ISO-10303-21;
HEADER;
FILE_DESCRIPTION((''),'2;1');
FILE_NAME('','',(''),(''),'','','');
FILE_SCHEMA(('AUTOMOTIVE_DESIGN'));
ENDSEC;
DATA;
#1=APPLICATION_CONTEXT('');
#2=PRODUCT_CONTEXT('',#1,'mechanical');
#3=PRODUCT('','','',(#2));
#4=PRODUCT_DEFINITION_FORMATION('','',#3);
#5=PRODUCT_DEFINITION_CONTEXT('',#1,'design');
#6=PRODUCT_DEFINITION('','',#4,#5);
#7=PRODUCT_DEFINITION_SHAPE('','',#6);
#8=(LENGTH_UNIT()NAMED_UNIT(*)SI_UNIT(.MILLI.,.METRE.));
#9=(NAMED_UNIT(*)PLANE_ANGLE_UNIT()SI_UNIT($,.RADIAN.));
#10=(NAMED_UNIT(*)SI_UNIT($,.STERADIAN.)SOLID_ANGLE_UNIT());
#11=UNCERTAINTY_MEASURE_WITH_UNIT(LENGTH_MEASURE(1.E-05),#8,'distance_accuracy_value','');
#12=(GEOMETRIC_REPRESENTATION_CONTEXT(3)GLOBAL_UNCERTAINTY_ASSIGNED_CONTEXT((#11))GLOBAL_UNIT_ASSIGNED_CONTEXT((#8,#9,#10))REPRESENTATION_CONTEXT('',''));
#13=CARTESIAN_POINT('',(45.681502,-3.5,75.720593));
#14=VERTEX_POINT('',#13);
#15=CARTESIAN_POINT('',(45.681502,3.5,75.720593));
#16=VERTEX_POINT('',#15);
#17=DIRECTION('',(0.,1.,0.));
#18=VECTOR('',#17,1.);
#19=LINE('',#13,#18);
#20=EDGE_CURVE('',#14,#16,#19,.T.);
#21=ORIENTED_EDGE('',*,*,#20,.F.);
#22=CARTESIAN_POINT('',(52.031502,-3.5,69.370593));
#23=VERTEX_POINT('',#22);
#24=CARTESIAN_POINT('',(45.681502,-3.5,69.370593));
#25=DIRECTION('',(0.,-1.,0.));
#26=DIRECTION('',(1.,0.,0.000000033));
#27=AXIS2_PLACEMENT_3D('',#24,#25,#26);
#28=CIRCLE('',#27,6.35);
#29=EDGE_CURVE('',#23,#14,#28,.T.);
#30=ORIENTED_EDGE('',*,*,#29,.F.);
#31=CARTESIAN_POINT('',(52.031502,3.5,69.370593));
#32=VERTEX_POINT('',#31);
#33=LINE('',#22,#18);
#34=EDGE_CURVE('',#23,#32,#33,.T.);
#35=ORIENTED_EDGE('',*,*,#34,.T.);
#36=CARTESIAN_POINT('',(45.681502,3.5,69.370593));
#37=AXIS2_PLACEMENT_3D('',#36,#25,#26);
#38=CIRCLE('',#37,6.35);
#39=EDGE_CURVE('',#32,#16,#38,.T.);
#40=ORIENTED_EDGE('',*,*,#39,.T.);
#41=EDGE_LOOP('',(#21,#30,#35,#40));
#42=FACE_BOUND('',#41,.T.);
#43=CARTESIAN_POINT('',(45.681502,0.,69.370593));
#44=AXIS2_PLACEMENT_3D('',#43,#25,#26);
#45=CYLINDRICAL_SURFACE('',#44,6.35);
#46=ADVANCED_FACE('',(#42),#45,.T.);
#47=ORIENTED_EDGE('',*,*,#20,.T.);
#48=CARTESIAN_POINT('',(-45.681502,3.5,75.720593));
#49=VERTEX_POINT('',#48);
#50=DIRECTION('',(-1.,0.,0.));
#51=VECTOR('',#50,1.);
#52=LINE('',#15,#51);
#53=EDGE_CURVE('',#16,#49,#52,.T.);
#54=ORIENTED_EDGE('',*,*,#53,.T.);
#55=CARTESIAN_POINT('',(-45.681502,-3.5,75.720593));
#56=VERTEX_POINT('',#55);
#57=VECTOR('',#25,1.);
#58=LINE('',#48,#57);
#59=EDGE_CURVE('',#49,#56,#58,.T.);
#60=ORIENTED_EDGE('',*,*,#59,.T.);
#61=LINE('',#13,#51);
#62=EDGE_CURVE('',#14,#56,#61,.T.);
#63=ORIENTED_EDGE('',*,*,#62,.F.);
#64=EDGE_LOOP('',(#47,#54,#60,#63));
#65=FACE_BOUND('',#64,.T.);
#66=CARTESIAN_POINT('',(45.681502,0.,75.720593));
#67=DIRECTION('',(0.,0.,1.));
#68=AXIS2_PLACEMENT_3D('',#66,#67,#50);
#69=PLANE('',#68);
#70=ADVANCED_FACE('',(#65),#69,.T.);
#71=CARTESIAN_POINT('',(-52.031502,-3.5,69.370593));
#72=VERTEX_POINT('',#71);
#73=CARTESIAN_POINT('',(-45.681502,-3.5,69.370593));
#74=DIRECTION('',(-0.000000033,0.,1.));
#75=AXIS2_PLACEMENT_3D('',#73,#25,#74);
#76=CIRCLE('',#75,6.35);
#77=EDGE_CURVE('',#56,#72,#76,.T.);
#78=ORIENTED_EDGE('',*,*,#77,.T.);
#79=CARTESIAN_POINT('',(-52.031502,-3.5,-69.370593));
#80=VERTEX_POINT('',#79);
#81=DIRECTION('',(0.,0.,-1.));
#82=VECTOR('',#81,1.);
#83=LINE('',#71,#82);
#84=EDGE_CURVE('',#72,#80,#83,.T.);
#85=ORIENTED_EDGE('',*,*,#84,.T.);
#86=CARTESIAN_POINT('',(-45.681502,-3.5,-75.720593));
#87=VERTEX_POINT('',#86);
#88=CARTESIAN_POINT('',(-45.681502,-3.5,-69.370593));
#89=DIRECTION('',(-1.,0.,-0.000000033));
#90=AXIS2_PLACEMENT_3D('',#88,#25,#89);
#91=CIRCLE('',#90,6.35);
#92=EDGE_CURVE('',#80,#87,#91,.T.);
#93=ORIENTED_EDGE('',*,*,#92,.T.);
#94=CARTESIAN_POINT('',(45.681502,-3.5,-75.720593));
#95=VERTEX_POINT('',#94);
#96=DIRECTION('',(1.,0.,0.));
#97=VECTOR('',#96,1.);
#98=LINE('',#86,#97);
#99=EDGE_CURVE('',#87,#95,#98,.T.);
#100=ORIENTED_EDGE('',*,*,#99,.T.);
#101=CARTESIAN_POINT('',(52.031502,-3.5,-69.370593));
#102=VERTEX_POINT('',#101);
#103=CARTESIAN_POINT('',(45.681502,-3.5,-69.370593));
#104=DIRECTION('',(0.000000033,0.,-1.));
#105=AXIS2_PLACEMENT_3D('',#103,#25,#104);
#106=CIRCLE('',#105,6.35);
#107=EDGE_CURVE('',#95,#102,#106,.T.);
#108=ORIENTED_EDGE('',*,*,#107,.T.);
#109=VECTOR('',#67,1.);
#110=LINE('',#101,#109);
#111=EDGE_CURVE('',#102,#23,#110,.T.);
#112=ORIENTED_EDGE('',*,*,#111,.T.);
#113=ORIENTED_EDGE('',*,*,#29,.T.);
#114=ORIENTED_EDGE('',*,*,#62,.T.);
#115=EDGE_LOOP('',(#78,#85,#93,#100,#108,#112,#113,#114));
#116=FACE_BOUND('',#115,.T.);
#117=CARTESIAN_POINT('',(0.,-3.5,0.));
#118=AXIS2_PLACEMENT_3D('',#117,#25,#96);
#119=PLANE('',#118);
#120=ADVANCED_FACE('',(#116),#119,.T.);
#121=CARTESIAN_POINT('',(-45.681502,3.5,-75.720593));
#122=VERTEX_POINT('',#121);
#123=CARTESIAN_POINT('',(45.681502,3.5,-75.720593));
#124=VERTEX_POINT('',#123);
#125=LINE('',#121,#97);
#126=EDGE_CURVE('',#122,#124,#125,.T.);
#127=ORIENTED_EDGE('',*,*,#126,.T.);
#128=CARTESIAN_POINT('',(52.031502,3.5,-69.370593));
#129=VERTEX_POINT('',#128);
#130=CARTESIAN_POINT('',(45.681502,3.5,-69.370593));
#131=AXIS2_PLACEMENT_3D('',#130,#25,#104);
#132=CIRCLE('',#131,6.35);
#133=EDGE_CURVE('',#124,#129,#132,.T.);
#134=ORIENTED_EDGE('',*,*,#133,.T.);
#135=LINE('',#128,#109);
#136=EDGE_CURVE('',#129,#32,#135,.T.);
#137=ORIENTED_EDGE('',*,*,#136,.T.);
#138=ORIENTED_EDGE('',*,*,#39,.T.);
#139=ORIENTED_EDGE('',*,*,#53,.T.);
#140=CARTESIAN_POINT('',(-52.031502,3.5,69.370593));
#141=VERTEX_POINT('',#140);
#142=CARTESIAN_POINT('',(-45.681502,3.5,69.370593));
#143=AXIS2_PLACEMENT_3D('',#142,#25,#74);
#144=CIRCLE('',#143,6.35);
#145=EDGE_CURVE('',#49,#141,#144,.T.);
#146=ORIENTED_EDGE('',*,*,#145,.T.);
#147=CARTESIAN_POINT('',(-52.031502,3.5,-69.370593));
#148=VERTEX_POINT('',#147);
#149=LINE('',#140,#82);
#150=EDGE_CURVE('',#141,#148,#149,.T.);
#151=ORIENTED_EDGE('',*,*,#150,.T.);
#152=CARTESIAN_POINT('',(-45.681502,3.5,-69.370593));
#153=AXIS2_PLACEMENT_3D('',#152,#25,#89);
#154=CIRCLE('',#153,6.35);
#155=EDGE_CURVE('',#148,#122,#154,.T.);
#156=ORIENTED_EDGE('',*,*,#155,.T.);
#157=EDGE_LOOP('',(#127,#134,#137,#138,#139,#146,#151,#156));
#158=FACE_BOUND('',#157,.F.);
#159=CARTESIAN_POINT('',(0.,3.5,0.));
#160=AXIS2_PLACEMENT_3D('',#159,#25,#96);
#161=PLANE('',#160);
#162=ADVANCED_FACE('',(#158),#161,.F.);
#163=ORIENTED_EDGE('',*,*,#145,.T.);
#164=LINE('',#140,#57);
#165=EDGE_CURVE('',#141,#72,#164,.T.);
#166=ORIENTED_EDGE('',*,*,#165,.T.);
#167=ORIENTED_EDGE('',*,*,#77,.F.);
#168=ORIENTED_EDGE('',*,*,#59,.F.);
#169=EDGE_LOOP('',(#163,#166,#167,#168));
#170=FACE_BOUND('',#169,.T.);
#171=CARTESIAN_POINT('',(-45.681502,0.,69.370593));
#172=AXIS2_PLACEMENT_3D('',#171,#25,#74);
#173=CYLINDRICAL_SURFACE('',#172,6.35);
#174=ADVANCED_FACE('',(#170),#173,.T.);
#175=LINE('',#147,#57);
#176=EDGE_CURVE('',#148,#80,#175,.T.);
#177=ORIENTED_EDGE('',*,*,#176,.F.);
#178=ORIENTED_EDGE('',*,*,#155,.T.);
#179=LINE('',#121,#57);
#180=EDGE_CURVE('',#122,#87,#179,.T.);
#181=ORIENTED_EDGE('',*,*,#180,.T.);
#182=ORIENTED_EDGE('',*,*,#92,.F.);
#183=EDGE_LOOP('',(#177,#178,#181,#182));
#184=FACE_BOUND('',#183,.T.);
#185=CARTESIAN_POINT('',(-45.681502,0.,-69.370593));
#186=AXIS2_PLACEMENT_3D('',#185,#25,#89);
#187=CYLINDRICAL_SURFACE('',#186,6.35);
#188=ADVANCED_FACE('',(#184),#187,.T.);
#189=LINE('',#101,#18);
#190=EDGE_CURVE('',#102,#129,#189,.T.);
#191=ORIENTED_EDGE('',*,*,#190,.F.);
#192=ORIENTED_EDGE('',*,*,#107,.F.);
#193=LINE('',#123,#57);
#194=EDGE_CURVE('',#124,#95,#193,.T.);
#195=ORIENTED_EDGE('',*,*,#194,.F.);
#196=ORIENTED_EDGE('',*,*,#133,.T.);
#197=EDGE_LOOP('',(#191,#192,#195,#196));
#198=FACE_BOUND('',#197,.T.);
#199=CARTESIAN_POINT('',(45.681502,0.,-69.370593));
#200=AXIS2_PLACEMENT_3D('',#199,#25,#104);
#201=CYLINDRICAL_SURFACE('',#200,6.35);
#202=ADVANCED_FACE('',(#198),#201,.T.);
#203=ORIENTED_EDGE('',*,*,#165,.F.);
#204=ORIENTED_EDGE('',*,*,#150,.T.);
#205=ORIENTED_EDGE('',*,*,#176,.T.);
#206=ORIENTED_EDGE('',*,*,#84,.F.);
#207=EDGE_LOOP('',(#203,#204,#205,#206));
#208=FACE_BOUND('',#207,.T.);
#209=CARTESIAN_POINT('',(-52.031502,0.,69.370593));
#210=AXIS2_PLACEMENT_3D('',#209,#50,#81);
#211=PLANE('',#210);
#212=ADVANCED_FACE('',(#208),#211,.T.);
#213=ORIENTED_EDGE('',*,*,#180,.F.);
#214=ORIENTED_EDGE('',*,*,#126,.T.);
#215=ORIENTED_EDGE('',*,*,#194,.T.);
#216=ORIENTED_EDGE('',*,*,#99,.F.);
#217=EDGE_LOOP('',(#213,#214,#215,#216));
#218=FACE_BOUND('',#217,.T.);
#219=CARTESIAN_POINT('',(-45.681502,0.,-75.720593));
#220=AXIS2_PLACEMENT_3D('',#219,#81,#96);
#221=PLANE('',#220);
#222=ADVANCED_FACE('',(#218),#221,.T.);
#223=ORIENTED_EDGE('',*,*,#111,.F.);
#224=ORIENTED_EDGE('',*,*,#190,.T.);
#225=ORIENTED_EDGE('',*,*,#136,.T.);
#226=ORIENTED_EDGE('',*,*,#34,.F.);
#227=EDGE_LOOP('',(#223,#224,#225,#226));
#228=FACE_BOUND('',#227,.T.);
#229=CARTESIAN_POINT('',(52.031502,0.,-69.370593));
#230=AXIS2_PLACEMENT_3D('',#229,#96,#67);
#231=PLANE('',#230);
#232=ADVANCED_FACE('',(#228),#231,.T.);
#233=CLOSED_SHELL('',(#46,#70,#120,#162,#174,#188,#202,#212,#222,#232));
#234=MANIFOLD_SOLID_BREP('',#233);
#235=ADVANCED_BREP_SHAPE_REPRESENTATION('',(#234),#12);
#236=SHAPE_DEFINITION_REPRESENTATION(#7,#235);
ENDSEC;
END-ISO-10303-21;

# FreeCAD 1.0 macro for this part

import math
import FreeCAD as App
import Part
import Sketcher

V = App.Vector

doc = App.newDocument("Part")
body = doc.addObject("PartDesign::Body", "Body")

# Sketch on XZ plane
sketch1 = body.newObject("Sketcher::SketchObject", "Sketch")
sketch1.AttachmentSupport = (doc.getObject("XZ_Plane"), [""])
sketch1.MapMode = "FlatFace"
sketch1.addGeometry(Part.LineSegment(V(45.681502, 75.720593, 0), V(-45.681502, 75.720593, 0)), False)
sketch1.addGeometry(Part.ArcOfCircle(Part.Circle(V(-45.681502, 69.370593, 0), V(0, 0, 1), 6.35), math.radians(90.000002), math.radians(179.999998)), False)
sketch1.addGeometry(Part.LineSegment(V(-52.031502, 69.370593, 0), V(-52.031502, -69.370593, 0)), False)
sketch1.addGeometry(Part.ArcOfCircle(Part.Circle(V(-45.681502, -69.370593, 0), V(0, 0, 1), 6.35), math.radians(-179.999998), math.radians(-90.000002)), False)
sketch1.addGeometry(Part.LineSegment(V(-45.681502, -75.720593, 0), V(45.681502, -75.720593, 0)), False)
sketch1.addGeometry(Part.ArcOfCircle(Part.Circle(V(45.681502, -69.370593, 0), V(0, 0, 1), 6.35), math.radians(-89.999998), math.radians(-0.000002)), False)
sketch1.addGeometry(Part.LineSegment(V(52.031502, -69.370593, 0), V(52.031502, 69.370593, 0)), False)
sketch1.addGeometry(Part.ArcOfCircle(Part.Circle(V(45.681502, 69.370593, 0), V(0, 0, 1), 6.35), math.radians(0.000002), math.radians(89.999998)), False)
sketch1.addConstraint(Sketcher.Constraint("Tangent", 0, 2, 1, 1))
sketch1.addConstraint(Sketcher.Constraint("Tangent", 1, 2, 2, 1))
sketch1.addConstraint(Sketcher.Constraint("Tangent", 2, 2, 3, 1))
sketch1.addConstraint(Sketcher.Constraint("Tangent", 3, 2, 4, 1))
sketch1.addConstraint(Sketcher.Constraint("Tangent", 4, 2, 5, 1))
sketch1.addConstraint(Sketcher.Constraint("Tangent", 5, 2, 6, 1))
sketch1.addConstraint(Sketcher.Constraint("Tangent", 6, 2, 7, 1))
sketch1.addConstraint(Sketcher.Constraint("Tangent", 7, 2, 0, 1))
sketch1.addConstraint(Sketcher.Constraint("Horizontal", 0))
sketch1.addConstraint(Sketcher.Constraint("Vertical", 2))
sketch1.addConstraint(Sketcher.Constraint("Horizontal", 4))
sketch1.addConstraint(Sketcher.Constraint("Vertical", 6))
sketch1.addConstraint(Sketcher.Constraint("Equal", 1, 3))
sketch1.addConstraint(Sketcher.Constraint("Equal", 3, 5))
sketch1.addConstraint(Sketcher.Constraint("Equal", 5, 7))
sketch1.addConstraint(Sketcher.Constraint("Symmetric", 1, 3, 5, 3, -1, 1))
sketch1.addConstraint(Sketcher.Constraint("Radius", 1, 6.35))
sketch1.addConstraint(Sketcher.Constraint("DistanceX", 1, 3, -1, 1, 45.681502))
sketch1.addConstraint(Sketcher.Constraint("DistanceY", 2, 2, 2, 1, 138.741186))
pad1 = body.newObject("PartDesign::Pad", "Pad")
pad1.Profile = sketch1
pad1.Length = 7
pad1.Midplane = True

doc.recompute()
